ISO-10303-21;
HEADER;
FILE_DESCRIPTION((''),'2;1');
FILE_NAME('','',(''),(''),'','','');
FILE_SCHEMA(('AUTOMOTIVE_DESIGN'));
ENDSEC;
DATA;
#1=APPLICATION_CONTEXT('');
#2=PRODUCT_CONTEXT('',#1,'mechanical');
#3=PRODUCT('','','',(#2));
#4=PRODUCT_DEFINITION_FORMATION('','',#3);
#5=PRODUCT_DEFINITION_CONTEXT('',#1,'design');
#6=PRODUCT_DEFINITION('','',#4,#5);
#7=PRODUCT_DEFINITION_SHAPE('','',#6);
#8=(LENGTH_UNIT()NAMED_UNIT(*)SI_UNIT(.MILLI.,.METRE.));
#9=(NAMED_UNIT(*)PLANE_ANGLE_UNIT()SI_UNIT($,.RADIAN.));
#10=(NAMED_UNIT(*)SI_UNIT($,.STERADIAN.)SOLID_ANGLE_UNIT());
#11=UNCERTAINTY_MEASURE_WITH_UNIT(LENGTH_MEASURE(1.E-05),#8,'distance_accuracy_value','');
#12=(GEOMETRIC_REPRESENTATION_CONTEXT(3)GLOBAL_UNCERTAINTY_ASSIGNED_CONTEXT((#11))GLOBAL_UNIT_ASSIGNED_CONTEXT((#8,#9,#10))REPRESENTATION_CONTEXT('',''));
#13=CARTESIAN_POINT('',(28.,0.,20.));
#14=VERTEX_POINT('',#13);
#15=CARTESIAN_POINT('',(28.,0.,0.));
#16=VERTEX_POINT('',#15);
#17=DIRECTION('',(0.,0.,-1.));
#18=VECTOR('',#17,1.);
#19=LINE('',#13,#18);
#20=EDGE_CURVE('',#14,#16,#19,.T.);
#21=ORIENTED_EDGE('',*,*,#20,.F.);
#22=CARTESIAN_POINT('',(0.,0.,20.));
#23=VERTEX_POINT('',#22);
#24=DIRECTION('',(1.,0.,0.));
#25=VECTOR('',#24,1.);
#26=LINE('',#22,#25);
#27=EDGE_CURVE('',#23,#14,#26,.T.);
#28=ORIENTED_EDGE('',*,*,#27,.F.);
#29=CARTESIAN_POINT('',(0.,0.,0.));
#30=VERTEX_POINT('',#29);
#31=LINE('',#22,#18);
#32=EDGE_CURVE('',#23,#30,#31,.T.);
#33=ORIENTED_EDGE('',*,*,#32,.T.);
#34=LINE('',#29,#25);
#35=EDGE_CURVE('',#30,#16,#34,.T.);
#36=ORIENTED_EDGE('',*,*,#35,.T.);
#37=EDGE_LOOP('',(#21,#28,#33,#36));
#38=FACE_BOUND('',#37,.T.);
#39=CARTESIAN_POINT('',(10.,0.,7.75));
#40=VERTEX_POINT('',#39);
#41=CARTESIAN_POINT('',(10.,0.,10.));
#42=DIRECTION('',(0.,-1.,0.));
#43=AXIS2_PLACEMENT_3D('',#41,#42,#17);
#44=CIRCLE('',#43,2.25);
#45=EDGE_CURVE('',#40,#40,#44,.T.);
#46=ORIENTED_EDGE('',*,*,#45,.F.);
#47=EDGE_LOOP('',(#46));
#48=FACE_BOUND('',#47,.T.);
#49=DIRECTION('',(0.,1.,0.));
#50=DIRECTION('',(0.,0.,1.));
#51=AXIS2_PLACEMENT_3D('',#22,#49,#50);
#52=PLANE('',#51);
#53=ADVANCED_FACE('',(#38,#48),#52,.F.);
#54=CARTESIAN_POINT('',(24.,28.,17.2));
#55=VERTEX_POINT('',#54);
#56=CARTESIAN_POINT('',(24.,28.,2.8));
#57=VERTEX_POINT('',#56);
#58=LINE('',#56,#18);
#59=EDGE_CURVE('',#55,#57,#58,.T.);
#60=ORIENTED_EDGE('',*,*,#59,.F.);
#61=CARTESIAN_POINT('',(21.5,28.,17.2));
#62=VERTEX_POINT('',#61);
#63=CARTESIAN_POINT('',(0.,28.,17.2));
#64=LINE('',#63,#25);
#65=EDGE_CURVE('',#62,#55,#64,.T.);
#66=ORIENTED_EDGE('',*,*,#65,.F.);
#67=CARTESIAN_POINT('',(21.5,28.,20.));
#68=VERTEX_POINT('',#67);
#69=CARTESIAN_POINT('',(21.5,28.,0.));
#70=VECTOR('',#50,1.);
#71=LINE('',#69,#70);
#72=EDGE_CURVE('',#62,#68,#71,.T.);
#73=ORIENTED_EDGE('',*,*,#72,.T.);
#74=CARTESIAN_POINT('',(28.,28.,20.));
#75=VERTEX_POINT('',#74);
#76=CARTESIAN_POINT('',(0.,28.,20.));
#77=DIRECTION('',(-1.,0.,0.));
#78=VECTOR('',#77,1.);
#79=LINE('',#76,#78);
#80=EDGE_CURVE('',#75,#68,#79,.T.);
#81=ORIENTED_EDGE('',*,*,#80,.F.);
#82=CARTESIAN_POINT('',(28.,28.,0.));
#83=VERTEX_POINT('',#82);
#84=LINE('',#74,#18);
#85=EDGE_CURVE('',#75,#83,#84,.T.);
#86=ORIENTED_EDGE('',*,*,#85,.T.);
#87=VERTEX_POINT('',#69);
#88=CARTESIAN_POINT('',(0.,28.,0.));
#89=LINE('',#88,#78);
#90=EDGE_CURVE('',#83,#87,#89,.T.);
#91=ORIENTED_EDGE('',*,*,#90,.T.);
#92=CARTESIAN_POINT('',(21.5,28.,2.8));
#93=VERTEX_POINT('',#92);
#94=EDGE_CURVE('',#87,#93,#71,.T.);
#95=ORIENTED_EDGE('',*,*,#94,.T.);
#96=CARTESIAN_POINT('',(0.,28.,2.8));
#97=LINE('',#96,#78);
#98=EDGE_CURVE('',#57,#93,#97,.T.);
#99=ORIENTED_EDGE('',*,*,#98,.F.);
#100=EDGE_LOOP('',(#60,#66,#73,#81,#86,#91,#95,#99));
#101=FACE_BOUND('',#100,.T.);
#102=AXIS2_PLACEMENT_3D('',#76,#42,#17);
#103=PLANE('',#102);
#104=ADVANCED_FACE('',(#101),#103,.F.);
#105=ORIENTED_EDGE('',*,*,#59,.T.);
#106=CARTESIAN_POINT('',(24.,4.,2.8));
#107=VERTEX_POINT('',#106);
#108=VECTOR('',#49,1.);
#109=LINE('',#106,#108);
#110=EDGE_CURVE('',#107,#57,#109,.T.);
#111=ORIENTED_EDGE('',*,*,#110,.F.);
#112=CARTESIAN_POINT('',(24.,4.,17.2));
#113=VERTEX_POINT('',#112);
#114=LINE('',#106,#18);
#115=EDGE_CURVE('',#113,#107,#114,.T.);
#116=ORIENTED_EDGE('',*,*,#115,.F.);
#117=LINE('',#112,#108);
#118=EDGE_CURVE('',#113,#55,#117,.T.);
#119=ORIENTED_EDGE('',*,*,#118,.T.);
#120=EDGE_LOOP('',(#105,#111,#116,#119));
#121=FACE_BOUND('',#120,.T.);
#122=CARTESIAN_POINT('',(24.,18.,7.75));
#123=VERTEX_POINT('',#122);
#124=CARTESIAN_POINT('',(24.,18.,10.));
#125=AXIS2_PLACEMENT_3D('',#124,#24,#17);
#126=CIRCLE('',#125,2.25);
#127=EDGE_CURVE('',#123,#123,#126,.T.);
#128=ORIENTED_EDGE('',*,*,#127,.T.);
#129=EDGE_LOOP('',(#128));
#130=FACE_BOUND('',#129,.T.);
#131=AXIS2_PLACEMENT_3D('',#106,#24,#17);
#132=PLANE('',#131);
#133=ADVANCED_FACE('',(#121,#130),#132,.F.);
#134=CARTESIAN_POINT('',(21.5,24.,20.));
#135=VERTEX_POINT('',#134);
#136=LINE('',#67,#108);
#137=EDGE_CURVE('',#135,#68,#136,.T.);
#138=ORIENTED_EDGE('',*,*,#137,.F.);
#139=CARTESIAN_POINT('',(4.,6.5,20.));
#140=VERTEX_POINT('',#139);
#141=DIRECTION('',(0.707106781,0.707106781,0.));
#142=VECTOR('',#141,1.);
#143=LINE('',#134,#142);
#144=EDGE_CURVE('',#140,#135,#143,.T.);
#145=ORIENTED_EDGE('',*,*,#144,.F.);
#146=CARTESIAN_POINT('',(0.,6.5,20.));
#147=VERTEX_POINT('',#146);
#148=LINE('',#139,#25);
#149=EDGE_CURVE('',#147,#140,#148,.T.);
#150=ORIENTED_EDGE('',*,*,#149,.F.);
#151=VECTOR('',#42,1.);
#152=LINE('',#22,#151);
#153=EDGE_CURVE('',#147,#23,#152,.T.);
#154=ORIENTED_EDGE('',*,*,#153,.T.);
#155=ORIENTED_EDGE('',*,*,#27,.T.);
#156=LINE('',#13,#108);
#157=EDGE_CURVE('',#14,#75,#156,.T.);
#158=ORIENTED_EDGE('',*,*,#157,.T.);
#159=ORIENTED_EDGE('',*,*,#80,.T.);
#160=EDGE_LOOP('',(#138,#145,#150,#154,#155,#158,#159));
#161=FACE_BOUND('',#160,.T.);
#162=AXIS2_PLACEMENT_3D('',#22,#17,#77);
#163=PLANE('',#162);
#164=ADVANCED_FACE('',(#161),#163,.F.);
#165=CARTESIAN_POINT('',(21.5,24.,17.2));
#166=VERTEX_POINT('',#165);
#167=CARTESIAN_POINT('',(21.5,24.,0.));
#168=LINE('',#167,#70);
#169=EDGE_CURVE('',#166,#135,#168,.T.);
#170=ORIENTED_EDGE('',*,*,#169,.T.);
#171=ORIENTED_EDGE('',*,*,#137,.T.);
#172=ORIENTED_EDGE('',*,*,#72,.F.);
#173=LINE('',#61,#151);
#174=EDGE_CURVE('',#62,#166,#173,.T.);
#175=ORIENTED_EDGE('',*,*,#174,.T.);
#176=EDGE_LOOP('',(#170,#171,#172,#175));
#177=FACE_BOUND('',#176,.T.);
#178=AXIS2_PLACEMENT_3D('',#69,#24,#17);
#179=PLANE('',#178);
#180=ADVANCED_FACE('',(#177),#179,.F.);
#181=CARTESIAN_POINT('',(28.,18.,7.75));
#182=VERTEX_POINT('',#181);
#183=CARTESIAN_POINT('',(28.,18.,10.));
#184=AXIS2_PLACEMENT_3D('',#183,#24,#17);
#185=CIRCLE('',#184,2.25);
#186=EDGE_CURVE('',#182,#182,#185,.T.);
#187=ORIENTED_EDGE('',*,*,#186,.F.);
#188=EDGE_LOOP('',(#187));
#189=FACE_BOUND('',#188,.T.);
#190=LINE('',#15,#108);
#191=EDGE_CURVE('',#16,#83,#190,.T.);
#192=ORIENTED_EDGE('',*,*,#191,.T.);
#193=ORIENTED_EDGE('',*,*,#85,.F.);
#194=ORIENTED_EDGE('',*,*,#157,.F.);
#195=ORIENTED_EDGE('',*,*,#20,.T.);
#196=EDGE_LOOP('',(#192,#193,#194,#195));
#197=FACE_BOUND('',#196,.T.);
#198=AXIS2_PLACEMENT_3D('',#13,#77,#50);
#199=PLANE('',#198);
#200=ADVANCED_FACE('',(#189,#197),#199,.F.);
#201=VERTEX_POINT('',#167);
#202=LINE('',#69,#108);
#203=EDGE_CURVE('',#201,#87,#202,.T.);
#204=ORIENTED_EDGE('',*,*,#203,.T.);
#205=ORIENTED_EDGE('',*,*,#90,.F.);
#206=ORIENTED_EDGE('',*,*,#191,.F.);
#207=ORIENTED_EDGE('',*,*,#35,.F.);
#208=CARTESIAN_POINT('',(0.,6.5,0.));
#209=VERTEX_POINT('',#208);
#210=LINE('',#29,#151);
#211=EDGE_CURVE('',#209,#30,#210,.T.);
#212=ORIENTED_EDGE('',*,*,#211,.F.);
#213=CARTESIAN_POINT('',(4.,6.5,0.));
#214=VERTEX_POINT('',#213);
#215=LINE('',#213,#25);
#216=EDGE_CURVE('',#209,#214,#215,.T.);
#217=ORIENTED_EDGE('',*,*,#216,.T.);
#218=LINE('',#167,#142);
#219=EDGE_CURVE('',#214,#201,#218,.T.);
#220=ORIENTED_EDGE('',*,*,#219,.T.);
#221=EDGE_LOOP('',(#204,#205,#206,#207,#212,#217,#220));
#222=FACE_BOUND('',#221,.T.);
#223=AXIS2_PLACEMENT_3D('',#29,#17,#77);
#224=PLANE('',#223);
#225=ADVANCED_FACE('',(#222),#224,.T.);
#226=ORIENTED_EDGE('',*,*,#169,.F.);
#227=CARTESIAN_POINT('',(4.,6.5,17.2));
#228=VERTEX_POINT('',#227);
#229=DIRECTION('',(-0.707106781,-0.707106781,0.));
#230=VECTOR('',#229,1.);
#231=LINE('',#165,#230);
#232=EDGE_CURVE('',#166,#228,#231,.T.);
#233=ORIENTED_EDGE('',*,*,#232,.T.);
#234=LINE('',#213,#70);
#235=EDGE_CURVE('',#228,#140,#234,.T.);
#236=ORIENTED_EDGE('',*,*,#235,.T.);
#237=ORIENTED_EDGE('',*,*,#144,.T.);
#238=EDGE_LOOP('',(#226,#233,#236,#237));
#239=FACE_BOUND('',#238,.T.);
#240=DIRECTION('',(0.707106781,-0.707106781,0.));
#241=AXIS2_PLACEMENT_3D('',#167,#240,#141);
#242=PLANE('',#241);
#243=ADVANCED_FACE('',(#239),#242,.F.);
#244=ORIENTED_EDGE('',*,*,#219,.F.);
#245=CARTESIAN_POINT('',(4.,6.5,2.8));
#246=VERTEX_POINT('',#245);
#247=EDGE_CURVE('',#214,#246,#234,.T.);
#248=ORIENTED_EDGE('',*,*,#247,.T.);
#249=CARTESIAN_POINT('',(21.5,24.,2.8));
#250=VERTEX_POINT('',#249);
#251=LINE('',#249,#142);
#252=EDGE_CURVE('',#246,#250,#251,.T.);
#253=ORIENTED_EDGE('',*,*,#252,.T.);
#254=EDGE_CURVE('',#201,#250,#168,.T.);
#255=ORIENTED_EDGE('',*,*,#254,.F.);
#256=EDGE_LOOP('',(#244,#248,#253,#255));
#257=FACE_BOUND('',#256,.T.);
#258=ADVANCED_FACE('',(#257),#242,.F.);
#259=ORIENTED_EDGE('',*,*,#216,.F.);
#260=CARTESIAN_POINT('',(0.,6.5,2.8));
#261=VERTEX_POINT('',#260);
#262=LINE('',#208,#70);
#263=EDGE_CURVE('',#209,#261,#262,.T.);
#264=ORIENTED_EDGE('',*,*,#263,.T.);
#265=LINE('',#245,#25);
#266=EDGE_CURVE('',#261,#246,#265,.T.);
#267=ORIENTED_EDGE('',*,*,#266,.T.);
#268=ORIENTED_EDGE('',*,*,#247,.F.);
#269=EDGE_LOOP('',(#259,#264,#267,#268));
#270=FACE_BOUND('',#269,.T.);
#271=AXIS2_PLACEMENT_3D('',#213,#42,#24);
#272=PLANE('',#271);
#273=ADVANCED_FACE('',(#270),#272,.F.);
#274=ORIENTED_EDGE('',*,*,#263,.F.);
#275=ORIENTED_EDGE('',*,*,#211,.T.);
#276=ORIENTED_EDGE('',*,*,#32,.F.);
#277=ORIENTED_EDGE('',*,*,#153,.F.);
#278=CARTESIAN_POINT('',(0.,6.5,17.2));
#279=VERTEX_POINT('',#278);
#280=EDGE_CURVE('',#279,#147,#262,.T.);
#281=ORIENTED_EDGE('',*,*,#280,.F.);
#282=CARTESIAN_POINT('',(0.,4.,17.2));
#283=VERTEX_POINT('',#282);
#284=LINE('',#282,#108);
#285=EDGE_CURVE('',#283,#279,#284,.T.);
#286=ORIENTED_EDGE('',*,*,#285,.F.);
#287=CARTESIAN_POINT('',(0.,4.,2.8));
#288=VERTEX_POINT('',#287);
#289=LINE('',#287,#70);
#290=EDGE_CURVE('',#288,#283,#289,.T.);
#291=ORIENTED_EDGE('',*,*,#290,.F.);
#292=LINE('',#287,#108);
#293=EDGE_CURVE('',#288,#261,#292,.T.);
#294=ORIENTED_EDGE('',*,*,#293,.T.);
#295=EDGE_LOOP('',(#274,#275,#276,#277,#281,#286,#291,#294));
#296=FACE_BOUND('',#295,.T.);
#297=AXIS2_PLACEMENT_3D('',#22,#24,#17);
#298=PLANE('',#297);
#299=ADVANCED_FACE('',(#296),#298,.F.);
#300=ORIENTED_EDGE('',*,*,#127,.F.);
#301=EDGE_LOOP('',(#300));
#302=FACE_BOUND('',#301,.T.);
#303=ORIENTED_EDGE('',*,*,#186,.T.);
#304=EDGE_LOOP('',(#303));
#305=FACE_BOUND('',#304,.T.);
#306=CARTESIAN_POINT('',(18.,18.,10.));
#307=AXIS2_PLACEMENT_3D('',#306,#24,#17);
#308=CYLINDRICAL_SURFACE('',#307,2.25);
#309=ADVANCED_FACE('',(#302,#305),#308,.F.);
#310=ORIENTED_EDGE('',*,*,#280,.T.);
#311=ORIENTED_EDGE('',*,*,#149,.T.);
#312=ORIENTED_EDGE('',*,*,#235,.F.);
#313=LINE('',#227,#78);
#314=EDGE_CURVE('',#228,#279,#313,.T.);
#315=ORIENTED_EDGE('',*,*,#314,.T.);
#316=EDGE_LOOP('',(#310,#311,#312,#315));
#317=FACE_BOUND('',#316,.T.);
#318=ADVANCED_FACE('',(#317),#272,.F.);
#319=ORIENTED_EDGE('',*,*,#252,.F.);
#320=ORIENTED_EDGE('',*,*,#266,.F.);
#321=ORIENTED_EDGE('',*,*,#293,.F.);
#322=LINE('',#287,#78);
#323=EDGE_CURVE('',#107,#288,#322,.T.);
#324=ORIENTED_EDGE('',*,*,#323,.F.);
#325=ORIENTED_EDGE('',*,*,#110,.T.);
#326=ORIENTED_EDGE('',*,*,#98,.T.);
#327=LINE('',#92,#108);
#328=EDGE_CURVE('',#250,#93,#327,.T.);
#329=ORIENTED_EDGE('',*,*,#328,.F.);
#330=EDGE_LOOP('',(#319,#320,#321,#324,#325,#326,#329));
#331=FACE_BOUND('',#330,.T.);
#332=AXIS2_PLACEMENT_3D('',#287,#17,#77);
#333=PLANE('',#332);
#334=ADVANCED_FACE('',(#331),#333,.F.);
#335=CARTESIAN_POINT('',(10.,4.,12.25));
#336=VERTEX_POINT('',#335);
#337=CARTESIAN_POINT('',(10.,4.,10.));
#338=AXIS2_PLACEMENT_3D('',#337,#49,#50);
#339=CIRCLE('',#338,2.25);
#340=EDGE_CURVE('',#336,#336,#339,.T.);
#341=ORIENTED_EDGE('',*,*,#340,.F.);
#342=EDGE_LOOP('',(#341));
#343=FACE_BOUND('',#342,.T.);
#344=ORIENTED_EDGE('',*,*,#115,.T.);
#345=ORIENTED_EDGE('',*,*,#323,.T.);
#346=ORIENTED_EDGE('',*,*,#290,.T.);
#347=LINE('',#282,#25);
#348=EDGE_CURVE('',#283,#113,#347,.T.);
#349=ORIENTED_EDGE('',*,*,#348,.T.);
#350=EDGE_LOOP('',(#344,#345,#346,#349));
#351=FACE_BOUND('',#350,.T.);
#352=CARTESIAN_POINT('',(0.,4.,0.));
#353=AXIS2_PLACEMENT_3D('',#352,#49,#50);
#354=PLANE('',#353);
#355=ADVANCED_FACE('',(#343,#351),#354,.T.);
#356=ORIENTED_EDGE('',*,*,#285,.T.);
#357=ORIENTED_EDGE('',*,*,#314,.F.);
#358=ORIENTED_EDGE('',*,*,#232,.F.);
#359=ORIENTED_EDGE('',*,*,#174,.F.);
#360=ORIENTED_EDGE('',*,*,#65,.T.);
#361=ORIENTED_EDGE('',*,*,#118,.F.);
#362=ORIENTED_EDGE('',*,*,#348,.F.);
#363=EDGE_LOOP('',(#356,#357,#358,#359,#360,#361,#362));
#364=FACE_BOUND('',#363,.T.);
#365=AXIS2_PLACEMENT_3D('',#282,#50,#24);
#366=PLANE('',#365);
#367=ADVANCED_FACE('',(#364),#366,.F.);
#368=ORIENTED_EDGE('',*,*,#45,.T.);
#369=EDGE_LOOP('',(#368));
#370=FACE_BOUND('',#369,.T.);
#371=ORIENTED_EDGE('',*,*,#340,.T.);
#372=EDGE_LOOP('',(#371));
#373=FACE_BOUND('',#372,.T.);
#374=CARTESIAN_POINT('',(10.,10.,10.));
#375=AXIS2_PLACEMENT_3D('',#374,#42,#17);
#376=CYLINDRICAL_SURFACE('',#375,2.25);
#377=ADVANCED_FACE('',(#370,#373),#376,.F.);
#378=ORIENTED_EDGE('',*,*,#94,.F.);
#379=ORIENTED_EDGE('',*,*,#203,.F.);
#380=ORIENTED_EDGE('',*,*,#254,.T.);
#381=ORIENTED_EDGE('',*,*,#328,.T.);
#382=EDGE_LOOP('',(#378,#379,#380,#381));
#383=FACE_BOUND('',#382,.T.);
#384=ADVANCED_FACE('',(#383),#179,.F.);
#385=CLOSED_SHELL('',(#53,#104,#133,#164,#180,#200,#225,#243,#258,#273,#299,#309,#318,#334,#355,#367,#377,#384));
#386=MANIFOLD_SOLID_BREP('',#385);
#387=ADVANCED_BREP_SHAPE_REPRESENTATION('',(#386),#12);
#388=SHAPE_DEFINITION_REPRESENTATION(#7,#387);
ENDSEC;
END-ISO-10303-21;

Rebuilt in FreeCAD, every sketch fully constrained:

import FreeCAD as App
import Part
import Sketcher

V = App.Vector
Q = App.Units.Quantity

doc = App.newDocument("Part")
params = doc.addObject("Spreadsheet::Sheet", "Params")
for row, (alias, value) in enumerate([
    ("sketch1_width", "28 mm"),
    ("pad1_length", "20 mm"),
    ("sketch2_width", "4 mm"),
    ("sketch2_width2", "21.5 mm"),
    ("pocket1_length", "20 mm"),
    ("sketch3_width", "24 mm"),
    ("sketch3_height", "14.4 mm"),
    ("pocket2_length", "24 mm"),
    ("sketch4_diameter", "4.5 mm"),
    ("pocket3_length", "10 mm"),
    ("sketch5_diameter", "4.5 mm"),
    ("pocket4_length", "10 mm"),
], start=1):
    params.set(f"A{row}", alias)
    params.set(f"B{row}", "=" + value)
    params.setAlias(f"B{row}", alias)

body = doc.addObject("PartDesign::Body", "Body")

# Sketch on XY plane
sketch1 = doc.addObject("Sketcher::SketchObject", "Sketch")
body.addObject(sketch1)
sketch1.AttachmentSupport = (doc.XY_Plane, [""])
sketch1.MapMode = "FlatFace"
sketch1.addGeometry([
    Part.LineSegment(V(0, 28, 0), V(0, 0, 0)),
    Part.LineSegment(V(0, 0, 0), V(28, 0, 0)),
    Part.LineSegment(V(28, 0, 0), V(28, 28, 0)),
    Part.LineSegment(V(28, 28, 0), V(0, 28, 0)),
], False)
sketch1.addConstraint([
    Sketcher.Constraint("Coincident", 0, 2, 1, 1),
    Sketcher.Constraint("Coincident", 1, 2, 2, 1),
    Sketcher.Constraint("Coincident", 2, 2, 3, 1),
    Sketcher.Constraint("Coincident", 3, 2, 0, 1),
    Sketcher.Constraint("Vertical", 0),
    Sketcher.Constraint("Horizontal", 1),
    Sketcher.Constraint("Vertical", 2),
    Sketcher.Constraint("Horizontal", 3),
    Sketcher.Constraint("Coincident", 0, 2, -1, 1),
    Sketcher.Constraint("Equal", 3, 0),
    Sketcher.Constraint("DistanceX", 1, 1, 1, 2, Q("28 mm")),
])
sketch1.setExpression("Constraints[10]", "Params.sketch1_width")
pad1 = doc.addObject("PartDesign::Pad", "Pad")
body.addObject(pad1)
pad1.Profile = sketch1
pad1.setExpression("Length", "Params.pad1_length")

# Sketch on XY plane
sketch2 = doc.addObject("Sketcher::SketchObject", "Sketch001")
body.addObject(sketch2)
sketch2.AttachmentSupport = (doc.XY_Plane, [""])
sketch2.MapMode = "FlatFace"
sketch2.AttachmentOffset = App.Placement(V(0, 0, 20), App.Rotation())
sketch2.addGeometry([
    Part.LineSegment(V(21.5, 24, 0), V(21.5, 28, 0)),  # 0
    Part.LineSegment(V(21.5, 28, 0), V(0, 28, 0)),  # 1
    Part.LineSegment(V(0, 28, 0), V(0, 6.5, 0)),  # 2
    Part.LineSegment(V(0, 6.5, 0), V(4, 6.5, 0)),  # 3
    Part.LineSegment(V(4, 6.5, 0), V(21.5, 24, 0)),  # 4
], False)
sketch2.addConstraint([
    Sketcher.Constraint("Coincident", 0, 2, 1, 1),
    Sketcher.Constraint("Coincident", 1, 2, 2, 1),
    Sketcher.Constraint("Coincident", 2, 2, 3, 1),
    Sketcher.Constraint("Coincident", 3, 2, 4, 1),
    Sketcher.Constraint("Coincident", 4, 2, 0, 1),
    Sketcher.Constraint("Vertical", 0),
    Sketcher.Constraint("Horizontal", 1),
    Sketcher.Constraint("Vertical", 2),
    Sketcher.Constraint("Horizontal", 3),
    Sketcher.Constraint("PointOnObject", 1, 2, -2),
    Sketcher.Constraint("Equal", 3, 0),
    Sketcher.Constraint("Equal", 1, 2),
    Sketcher.Constraint("DistanceX", 3, 1, 3, 2, Q("4 mm")),
    Sketcher.Constraint("DistanceX", 1, 2, 1, 1, Q("21.5 mm")),
    Sketcher.Constraint("DistanceY", -1, 1, 0, 2, Q("28 mm")),
])
sketch2.setExpression("Constraints[12]", "Params.sketch2_width")
sketch2.setExpression("Constraints[13]", "Params.sketch2_width2")
pocket1 = doc.addObject("PartDesign::Pocket", "Pocket")
body.addObject(pocket1)
pocket1.Profile = sketch2
pocket1.setExpression("Length", "Params.pocket1_length")

# Sketch on XZ plane
sketch3 = doc.addObject("Sketcher::SketchObject", "Sketch002")
body.addObject(sketch3)
sketch3.AttachmentSupport = (doc.XZ_Plane, [""])
sketch3.MapMode = "FlatFace"
sketch3.AttachmentOffset = App.Placement(V(0, 0, -28), App.Rotation())
sketch3.addGeometry([
    Part.LineSegment(V(0, 3, 0), V(0, 17, 0)),
    Part.LineSegment(V(0, 17, 0), V(24, 17, 0)),
    Part.LineSegment(V(24, 17, 0), V(24, 3, 0)),
    Part.LineSegment(V(24, 3, 0), V(0, 3, 0)),
], False)
sketch3.addConstraint([
    Sketcher.Constraint("Coincident", 0, 2, 1, 1),
    Sketcher.Constraint("Coincident", 1, 2, 2, 1),
    Sketcher.Constraint("Coincident", 2, 2, 3, 1),
    Sketcher.Constraint("Coincident", 3, 2, 0, 1),
    Sketcher.Constraint("Vertical", 0),
    Sketcher.Constraint("Horizontal", 1),
    Sketcher.Constraint("Vertical", 2),
    Sketcher.Constraint("Horizontal", 3),
    Sketcher.Constraint("PointOnObject", 0, 2, -2),
    Sketcher.Constraint("DistanceX", 1, 1, 1, 2, Q("24 mm")),
    Sketcher.Constraint("DistanceY", 0, 1, 0, 2, Q("14.4 mm")),
    Sketcher.Constraint("DistanceY", -1, 1, 0, 2, Q("17.2 mm")),
])
sketch3.setExpression("Constraints[9]", "Params.sketch3_width")
sketch3.setExpression("Constraints[10]", "Params.sketch3_height")
pocket2 = doc.addObject("PartDesign::Pocket", "Pocket001")
body.addObject(pocket2)
pocket2.Profile = sketch3
pocket2.setExpression("Length", "Params.pocket2_length")
pocket2.Reversed = True

# Sketch on XZ plane
sketch4 = doc.addObject("Sketcher::SketchObject", "Sketch003")
body.addObject(sketch4)
sketch4.AttachmentSupport = (doc.XZ_Plane, [""])
sketch4.MapMode = "FlatFace"
sketch4.addGeometry(Part.Circle(V(10, 10, 0), V(0, 0, 1), 2.2), False)
sketch4.addConstraint([
    Sketcher.Constraint("Diameter", 0, Q("4.5 mm")),
    Sketcher.Constraint("DistanceX", -1, 1, 0, 3, Q("10 mm")),
    Sketcher.Constraint("DistanceY", -1, 1, 0, 3, Q("10 mm")),
])
sketch4.setExpression("Constraints[0]", "Params.sketch4_diameter")
pocket3 = doc.addObject("PartDesign::Pocket", "Pocket002")
body.addObject(pocket3)
pocket3.Profile = sketch4
pocket3.setExpression("Length", "Params.pocket3_length")

# Sketch on YZ plane
sketch5 = doc.addObject("Sketcher::SketchObject", "Sketch004")
body.addObject(sketch5)
sketch5.AttachmentSupport = (doc.YZ_Plane, [""])
sketch5.MapMode = "FlatFace"
sketch5.AttachmentOffset = App.Placement(V(0, 0, 28), App.Rotation())
sketch5.addGeometry(Part.Circle(V(18, 10, 0), V(0, 0, 1), 2.2), False)
sketch5.addConstraint([
    Sketcher.Constraint("Diameter", 0, Q("4.5 mm")),
    Sketcher.Constraint("DistanceX", -1, 1, 0, 3, Q("18 mm")),
    Sketcher.Constraint("DistanceY", -1, 1, 0, 3, Q("10 mm")),
])
sketch5.setExpression("Constraints[0]", "Params.sketch5_diameter")
pocket4 = doc.addObject("PartDesign::Pocket", "Pocket003")
body.addObject(pocket4)
pocket4.Profile = sketch5
pocket4.setExpression("Length", "Params.pocket4_length")

doc.recompute()
